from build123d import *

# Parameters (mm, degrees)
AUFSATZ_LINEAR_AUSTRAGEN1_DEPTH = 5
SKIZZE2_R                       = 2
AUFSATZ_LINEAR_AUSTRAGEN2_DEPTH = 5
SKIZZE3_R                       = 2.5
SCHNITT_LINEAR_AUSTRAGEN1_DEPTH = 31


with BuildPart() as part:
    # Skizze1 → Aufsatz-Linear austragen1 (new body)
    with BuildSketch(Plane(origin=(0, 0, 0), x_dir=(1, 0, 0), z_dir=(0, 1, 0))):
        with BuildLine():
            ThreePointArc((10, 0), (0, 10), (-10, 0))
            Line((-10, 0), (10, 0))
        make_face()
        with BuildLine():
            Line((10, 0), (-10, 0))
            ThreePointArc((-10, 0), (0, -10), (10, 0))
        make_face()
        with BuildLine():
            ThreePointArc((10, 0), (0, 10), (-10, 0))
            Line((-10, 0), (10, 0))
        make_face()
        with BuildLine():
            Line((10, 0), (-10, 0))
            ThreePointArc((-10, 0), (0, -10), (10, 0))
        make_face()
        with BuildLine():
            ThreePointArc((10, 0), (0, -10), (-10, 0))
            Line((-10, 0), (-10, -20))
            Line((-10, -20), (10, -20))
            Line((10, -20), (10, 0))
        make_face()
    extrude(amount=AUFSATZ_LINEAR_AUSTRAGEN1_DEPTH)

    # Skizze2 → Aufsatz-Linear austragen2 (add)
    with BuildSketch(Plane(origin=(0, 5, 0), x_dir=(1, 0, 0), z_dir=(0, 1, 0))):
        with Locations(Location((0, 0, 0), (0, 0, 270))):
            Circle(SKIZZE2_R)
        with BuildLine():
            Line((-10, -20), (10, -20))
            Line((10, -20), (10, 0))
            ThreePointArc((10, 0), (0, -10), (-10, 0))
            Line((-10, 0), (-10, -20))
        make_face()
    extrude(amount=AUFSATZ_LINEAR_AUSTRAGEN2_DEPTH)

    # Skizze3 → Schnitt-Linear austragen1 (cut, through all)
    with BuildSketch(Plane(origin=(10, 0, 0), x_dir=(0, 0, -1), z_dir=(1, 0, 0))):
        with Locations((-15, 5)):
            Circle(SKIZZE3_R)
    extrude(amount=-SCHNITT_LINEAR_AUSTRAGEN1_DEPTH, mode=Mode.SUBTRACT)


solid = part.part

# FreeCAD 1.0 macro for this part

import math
import FreeCAD as App
import Part
import Sketcher

V = App.Vector

doc = App.newDocument("Part")
body = doc.addObject("PartDesign::Body", "Body")

# Sketch on XZ plane
sketch1 = body.newObject("Sketcher::SketchObject", "Sketch")
sketch1.AttachmentSupport = (doc.getObject("XZ_Plane"), [""])
sketch1.MapMode = "FlatFace"
sketch1.addGeometry(Part.ArcOfCircle(Part.Circle(V(0, 0, 0), V(0, 0, 1), 10), math.radians(180), math.radians(360)), False)
sketch1.addGeometry(Part.LineSegment(V(-10, 0, 0), V(-10, 20, 0)), False)
sketch1.addGeometry(Part.LineSegment(V(-10, 20, 0), V(10, 20, 0)), False)
sketch1.addGeometry(Part.LineSegment(V(10, 20, 0), V(10, 0, 0)), False)
sketch1.addConstraint(Sketcher.Constraint("Tangent", 0, 1, 1, 1))
sketch1.addConstraint(Sketcher.Constraint("Coincident", 1, 2, 2, 1))
sketch1.addConstraint(Sketcher.Constraint("Coincident", 2, 2, 3, 1))
sketch1.addConstraint(Sketcher.Constraint("Tangent", 3, 2, 0, 2))
sketch1.addConstraint(Sketcher.Constraint("Vertical", 1))
sketch1.addConstraint(Sketcher.Constraint("Horizontal", 2))
sketch1.addConstraint(Sketcher.Constraint("Vertical", 3))
sketch1.addConstraint(Sketcher.Constraint("Coincident", 0, 3, -1, 1))
sketch1.addConstraint(Sketcher.Constraint("Equal", 2, 1))
sketch1.addConstraint(Sketcher.Constraint("Radius", 0, 10.0))
pad1 = body.newObject("PartDesign::Pad", "Pad")
pad1.Profile = sketch1
pad1.Length = 5
pad1.Reversed = True

# Sketch on XZ plane
sketch2 = body.newObject("Sketcher::SketchObject", "Sketch001")
sketch2.AttachmentSupport = (doc.getObject("XZ_Plane"), [""])
sketch2.MapMode = "FlatFace"
sketch2.AttachmentOffset = App.Placement(V(0, 0, -5), App.Rotation())
sketch2.addGeometry(Part.Circle(V(0, 0, 0), V(0, 0, 1), 2), False)
sketch2.addGeometry(Part.LineSegment(V(-10, 20, 0), V(10, 20, 0)), False)
sketch2.addGeometry(Part.LineSegment(V(10, 20, 0), V(10, 0, 0)), False)
sketch2.addGeometry(Part.ArcOfCircle(Part.Circle(V(0, 0, 0), V(0, 0, 1), 10), math.radians(0), math.radians(180)), False)
sketch2.addGeometry(Part.LineSegment(V(-10, 0, 0), V(-10, 20, 0)), False)
sketch2.addConstraint(Sketcher.Constraint("Coincident", 1, 2, 2, 1))
sketch2.addConstraint(Sketcher.Constraint("Tangent", 2, 2, 3, 1))
sketch2.addConstraint(Sketcher.Constraint("Tangent", 3, 2, 4, 1))
sketch2.addConstraint(Sketcher.Constraint("Coincident", 4, 2, 1, 1))
sketch2.addConstraint(Sketcher.Constraint("Horizontal", 1))
sketch2.addConstraint(Sketcher.Constraint("Vertical", 2))
sketch2.addConstraint(Sketcher.Constraint("Vertical", 4))
sketch2.addConstraint(Sketcher.Constraint("Coincident", 0, 3, -1, 1))
sketch2.addConstraint(Sketcher.Constraint("Coincident", 3, 3, -1, 1))
sketch2.addConstraint(Sketcher.Constraint("Equal", 1, 2))
sketch2.addConstraint(Sketcher.Constraint("Diameter", 0, 4.0))
sketch2.addConstraint(Sketcher.Constraint("Radius", 3, 10.0))
pad2 = body.newObject("PartDesign::Pad", "Pad001")
pad2.Profile = sketch2
pad2.Length = 5
pad2.Reversed = True

# Sketch on YZ plane
sketch3 = body.newObject("Sketcher::SketchObject", "Sketch002")
sketch3.AttachmentSupport = (doc.getObject("YZ_Plane"), [""])
sketch3.MapMode = "FlatFace"
sketch3.AttachmentOffset = App.Placement(V(0, 0, 10), App.Rotation())
sketch3.addGeometry(Part.Circle(V(5, 15, 0), V(0, 0, 1), 2.5), False)
sketch3.addConstraint(Sketcher.Constraint("Diameter", 0, 5.0))
sketch3.addConstraint(Sketcher.Constraint("DistanceX", -1, 1, 0, 3, 5.0))
sketch3.addConstraint(Sketcher.Constraint("DistanceY", -1, 1, 0, 3, 15.0))
pocket1 = body.newObject("PartDesign::Pocket", "Pocket")
pocket1.Profile = sketch3
pocket1.Type = "ThroughAll"

doc.recompute()
